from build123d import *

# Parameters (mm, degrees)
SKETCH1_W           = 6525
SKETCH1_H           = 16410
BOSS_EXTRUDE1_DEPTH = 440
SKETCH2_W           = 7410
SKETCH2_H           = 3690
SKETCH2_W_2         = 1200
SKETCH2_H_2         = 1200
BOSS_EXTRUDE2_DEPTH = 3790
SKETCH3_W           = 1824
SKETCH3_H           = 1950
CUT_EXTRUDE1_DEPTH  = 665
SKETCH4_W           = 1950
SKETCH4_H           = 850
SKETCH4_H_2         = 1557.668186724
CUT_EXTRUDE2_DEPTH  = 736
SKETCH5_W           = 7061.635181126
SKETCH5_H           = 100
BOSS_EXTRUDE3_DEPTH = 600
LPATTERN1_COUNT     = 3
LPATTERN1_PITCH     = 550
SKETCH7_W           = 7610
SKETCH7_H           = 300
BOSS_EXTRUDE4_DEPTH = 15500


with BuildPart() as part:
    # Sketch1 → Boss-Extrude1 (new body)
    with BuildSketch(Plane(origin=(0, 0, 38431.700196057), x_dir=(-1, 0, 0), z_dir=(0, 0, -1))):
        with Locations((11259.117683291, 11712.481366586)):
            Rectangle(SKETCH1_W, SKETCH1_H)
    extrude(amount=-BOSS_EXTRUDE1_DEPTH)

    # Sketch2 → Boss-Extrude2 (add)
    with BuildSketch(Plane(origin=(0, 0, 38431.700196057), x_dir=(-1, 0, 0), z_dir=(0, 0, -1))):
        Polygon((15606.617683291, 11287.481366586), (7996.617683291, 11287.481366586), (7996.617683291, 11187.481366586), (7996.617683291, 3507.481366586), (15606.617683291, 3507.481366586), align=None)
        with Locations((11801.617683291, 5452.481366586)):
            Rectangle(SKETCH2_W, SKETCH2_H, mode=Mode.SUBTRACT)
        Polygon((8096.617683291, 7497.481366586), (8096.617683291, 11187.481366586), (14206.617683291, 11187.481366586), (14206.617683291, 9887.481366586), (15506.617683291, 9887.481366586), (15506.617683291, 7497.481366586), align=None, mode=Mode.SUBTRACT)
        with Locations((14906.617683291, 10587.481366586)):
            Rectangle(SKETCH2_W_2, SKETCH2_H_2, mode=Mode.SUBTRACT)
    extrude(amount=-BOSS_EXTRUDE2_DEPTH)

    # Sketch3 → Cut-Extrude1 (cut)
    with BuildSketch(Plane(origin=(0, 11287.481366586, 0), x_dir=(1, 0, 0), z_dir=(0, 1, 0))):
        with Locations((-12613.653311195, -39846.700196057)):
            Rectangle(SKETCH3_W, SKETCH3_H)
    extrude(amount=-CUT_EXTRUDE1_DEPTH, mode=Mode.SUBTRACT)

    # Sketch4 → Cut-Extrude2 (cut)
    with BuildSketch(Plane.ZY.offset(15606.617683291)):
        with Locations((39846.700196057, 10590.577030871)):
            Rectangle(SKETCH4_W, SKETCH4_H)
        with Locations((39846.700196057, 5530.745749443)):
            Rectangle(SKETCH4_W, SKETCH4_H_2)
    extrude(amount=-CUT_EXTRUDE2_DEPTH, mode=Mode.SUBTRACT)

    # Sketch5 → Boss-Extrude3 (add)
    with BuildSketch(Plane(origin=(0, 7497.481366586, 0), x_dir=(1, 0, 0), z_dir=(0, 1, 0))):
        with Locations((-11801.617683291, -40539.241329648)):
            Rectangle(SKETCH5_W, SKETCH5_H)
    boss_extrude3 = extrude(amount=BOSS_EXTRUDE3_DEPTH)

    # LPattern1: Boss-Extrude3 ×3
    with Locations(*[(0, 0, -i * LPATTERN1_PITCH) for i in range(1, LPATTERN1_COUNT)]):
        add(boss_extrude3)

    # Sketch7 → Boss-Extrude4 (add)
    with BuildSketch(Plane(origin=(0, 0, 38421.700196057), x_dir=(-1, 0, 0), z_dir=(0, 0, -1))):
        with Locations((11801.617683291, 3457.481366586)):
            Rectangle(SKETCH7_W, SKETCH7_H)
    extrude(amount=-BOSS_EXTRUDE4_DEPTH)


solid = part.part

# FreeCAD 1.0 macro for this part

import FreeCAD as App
import Part
import Sketcher

doc = App.newDocument("Part")
body = doc.addObject("PartDesign::Body", "Body")

# Sketch on XY plane
sketch1 = doc.addObject("Sketcher::SketchObject", "Sketch")
body.addObject(sketch1)
sketch1.AttachmentSupport = (doc.XY_Plane, [""])
sketch1.MapMode = "FlatFace"
sketch1.AttachmentOffset = App.Placement(App.Vector(0, 0, 38431.700196), App.Rotation())
sketch1.addGeometry([
    Part.LineSegment(App.Vector(-7996.617683, 19917.481367, 0), App.Vector(-7996.617683, 3507.481367, 0)),
    Part.LineSegment(App.Vector(-7996.617683, 3507.481367, 0), App.Vector(-14521.617683, 3507.481367, 0)),
    Part.LineSegment(App.Vector(-14521.617683, 3507.481367, 0), App.Vector(-14521.617683, 19917.481367, 0)),
    Part.LineSegment(App.Vector(-14521.617683, 19917.481367, 0), App.Vector(-7996.617683, 19917.481367, 0)),
], False)
sketch1.addConstraint([
    Sketcher.Constraint("Coincident", 0, 2, 1, 1),
    Sketcher.Constraint("Coincident", 1, 2, 2, 1),
    Sketcher.Constraint("Coincident", 2, 2, 3, 1),
    Sketcher.Constraint("Coincident", 3, 2, 0, 1),
    Sketcher.Constraint("Vertical", 0),
    Sketcher.Constraint("Horizontal", 1),
    Sketcher.Constraint("Vertical", 2),
    Sketcher.Constraint("Horizontal", 3),
    Sketcher.Constraint("DistanceX", 1, 2, 1, 1, 6525.0),
    Sketcher.Constraint("DistanceY", 0, 2, 0, 1, 16410.0),
    Sketcher.Constraint("DistanceX", 0, 2, -1, 1, 7996.617683),
    Sketcher.Constraint("DistanceY", -1, 1, 0, 2, 3507.481367),
])
pad1 = doc.addObject("PartDesign::Pad", "Pad")
body.addObject(pad1)
pad1.Profile = sketch1
pad1.Length = 440

# Sketch on XY plane
sketch2 = doc.addObject("Sketcher::SketchObject", "Sketch001")
body.addObject(sketch2)
sketch2.AttachmentSupport = (doc.XY_Plane, [""])
sketch2.MapMode = "FlatFace"
sketch2.AttachmentOffset = App.Placement(App.Vector(0, 0, 38431.700196), App.Rotation())
sketch2.addGeometry([
    Part.LineSegment(App.Vector(-15606.617683, 11287.481367, 0), App.Vector(-7996.617683, 11287.481367, 0)),  # 0
    Part.LineSegment(App.Vector(-7996.617683, 11287.481367, 0), App.Vector(-7996.617683, 3507.481367, 0)),  # 1
    Part.LineSegment(App.Vector(-7996.617683, 3507.481367, 0), App.Vector(-15606.617683, 3507.481367, 0)),  # 2
    Part.LineSegment(App.Vector(-15606.617683, 3507.481367, 0), App.Vector(-15606.617683, 11287.481367, 0)),  # 3
    Part.LineSegment(App.Vector(-15506.617683, 3607.481367, 0), App.Vector(-8096.617683, 3607.481367, 0)),  # 4
    Part.LineSegment(App.Vector(-8096.617683, 3607.481367, 0), App.Vector(-8096.617683, 7297.481367, 0)),  # 5
    Part.LineSegment(App.Vector(-8096.617683, 7297.481367, 0), App.Vector(-15506.617683, 7297.481367, 0)),  # 6
    Part.LineSegment(App.Vector(-15506.617683, 7297.481367, 0), App.Vector(-15506.617683, 3607.481367, 0)),  # 7
    Part.LineSegment(App.Vector(-15506.617683, 7497.481367, 0), App.Vector(-8096.617683, 7497.481367, 0)),  # 8
    Part.LineSegment(App.Vector(-8096.617683, 7497.481367, 0), App.Vector(-8096.617683, 11187.481367, 0)),  # 9
    Part.LineSegment(App.Vector(-8096.617683, 11187.481367, 0), App.Vector(-14206.617683, 11187.481367, 0)),  # 10
    Part.LineSegment(App.Vector(-14206.617683, 11187.481367, 0), App.Vector(-14206.617683, 9887.481367, 0)),  # 11
    Part.LineSegment(App.Vector(-14206.617683, 9887.481367, 0), App.Vector(-15506.617683, 9887.481367, 0)),  # 12
    Part.LineSegment(App.Vector(-15506.617683, 9887.481367, 0), App.Vector(-15506.617683, 7497.481367, 0)),  # 13
    Part.LineSegment(App.Vector(-15506.617683, 9987.481367, 0), App.Vector(-14306.617683, 9987.481367, 0)),  # 14
    Part.LineSegment(App.Vector(-14306.617683, 9987.481367, 0), App.Vector(-14306.617683, 11187.481367, 0)),  # 15
    Part.LineSegment(App.Vector(-14306.617683, 11187.481367, 0), App.Vector(-15506.617683, 11187.481367, 0)),  # 16
    Part.LineSegment(App.Vector(-15506.617683, 11187.481367, 0), App.Vector(-15506.617683, 9987.481367, 0)),  # 17
], False)
sketch2.addConstraint([
    Sketcher.Constraint("Coincident", 0, 2, 1, 1),
    Sketcher.Constraint("Coincident", 1, 2, 2, 1),
    Sketcher.Constraint("Coincident", 2, 2, 3, 1),
    Sketcher.Constraint("Coincident", 3, 2, 0, 1),
    Sketcher.Constraint("Coincident", 4, 2, 5, 1),
    Sketcher.Constraint("Coincident", 5, 2, 6, 1),
    Sketcher.Constraint("Coincident", 6, 2, 7, 1),
    Sketcher.Constraint("Coincident", 7, 2, 4, 1),
    Sketcher.Constraint("Coincident", 8, 2, 9, 1),
    Sketcher.Constraint("Coincident", 9, 2, 10, 1),
    Sketcher.Constraint("Coincident", 10, 2, 11, 1),
    Sketcher.Constraint("Coincident", 11, 2, 12, 1),
    Sketcher.Constraint("Coincident", 12, 2, 13, 1),
    Sketcher.Constraint("Coincident", 13, 2, 8, 1),
    Sketcher.Constraint("Coincident", 14, 2, 15, 1),
    Sketcher.Constraint("Coincident", 15, 2, 16, 1),
    Sketcher.Constraint("Coincident", 16, 2, 17, 1),
    Sketcher.Constraint("Coincident", 17, 2, 14, 1),
    Sketcher.Constraint("Horizontal", 0),
    Sketcher.Constraint("Vertical", 1),
    Sketcher.Constraint("Horizontal", 2),
    Sketcher.Constraint("Vertical", 3),
    Sketcher.Constraint("Horizontal", 4),
    Sketcher.Constraint("Vertical", 5),
    Sketcher.Constraint("Horizontal", 6),
    Sketcher.Constraint("Vertical", 7),
    Sketcher.Constraint("Horizontal", 8),
    Sketcher.Constraint("Vertical", 9),
    Sketcher.Constraint("Horizontal", 10),
    Sketcher.Constraint("Vertical", 11),
    Sketcher.Constraint("Horizontal", 12),
    Sketcher.Constraint("Vertical", 13),
    Sketcher.Constraint("Horizontal", 14),
    Sketcher.Constraint("Vertical", 15),
    Sketcher.Constraint("Horizontal", 16),
    Sketcher.Constraint("Vertical", 17),
    Sketcher.Constraint("Horizontal", 10, 2, 15, 2),
    Sketcher.Constraint("Vertical", 5, 2, 8, 2),
    Sketcher.Constraint("Vertical", 7, 2, 12, 2),
    Sketcher.Constraint("Vertical", 13, 2, 16, 2),
    Sketcher.Constraint("Equal", 7, 9),
    Sketcher.Constraint("Equal", 12, 11),
    Sketcher.Constraint("Equal", 16, 15),
    Sketcher.Constraint("DistanceX", 0, 1, 0, 2, 7610.0),
    Sketcher.Constraint("DistanceX", 4, 1, 4, 2, 7410.0),
    Sketcher.Constraint("DistanceX", 10, 2, 10, 1, 6110.0),
    Sketcher.Constraint("DistanceX", 14, 1, 14, 2, 1200.0),
    Sketcher.Constraint("DistanceY", 1, 2, 1, 1, 7780.0),
    Sketcher.Constraint("DistanceY", 5, 1, 5, 2, 3690.0),
    Sketcher.Constraint("DistanceX", 4, 2, 1, 2, 100.0),
    Sketcher.Constraint("DistanceY", 1, 2, 4, 2, 100.0),
    Sketcher.Constraint("DistanceY", 5, 2, 8, 2, 200.0),
    Sketcher.Constraint("DistanceX", 0, 2, -1, 1, 7996.617683),
    Sketcher.Constraint("DistanceY", -1, 1, 0, 2, 11287.481367),
])
pad2 = doc.addObject("PartDesign::Pad", "Pad001")
body.addObject(pad2)
pad2.Profile = sketch2
pad2.Length = 3790

# Sketch on XZ plane
sketch3 = doc.addObject("Sketcher::SketchObject", "Sketch002")
body.addObject(sketch3)
sketch3.AttachmentSupport = (doc.XZ_Plane, [""])
sketch3.MapMode = "FlatFace"
sketch3.AttachmentOffset = App.Placement(App.Vector(0, 0, -11287.481367), App.Rotation())
sketch3.addGeometry([
    Part.LineSegment(App.Vector(-13525.653311, 38871.700196, 0), App.Vector(-13525.653311, 40821.700196, 0)),
    Part.LineSegment(App.Vector(-13525.653311, 40821.700196, 0), App.Vector(-11701.653311, 40821.700196, 0)),
    Part.LineSegment(App.Vector(-11701.653311, 40821.700196, 0), App.Vector(-11701.653311, 38871.700196, 0)),
    Part.LineSegment(App.Vector(-11701.653311, 38871.700196, 0), App.Vector(-13525.653311, 38871.700196, 0)),
], False)
sketch3.addConstraint([
    Sketcher.Constraint("Coincident", 0, 2, 1, 1),
    Sketcher.Constraint("Coincident", 1, 2, 2, 1),
    Sketcher.Constraint("Coincident", 2, 2, 3, 1),
    Sketcher.Constraint("Coincident", 3, 2, 0, 1),
    Sketcher.Constraint("Vertical", 0),
    Sketcher.Constraint("Horizontal", 1),
    Sketcher.Constraint("Vertical", 2),
    Sketcher.Constraint("Horizontal", 3),
    Sketcher.Constraint("DistanceX", 1, 1, 1, 2, 1824.0),
    Sketcher.Constraint("DistanceY", 0, 1, 0, 2, 1950.0),
    Sketcher.Constraint("DistanceX", 0, 2, -1, 1, 13525.653311),
    Sketcher.Constraint("DistanceY", -1, 1, 0, 2, 40821.700196),
])
pocket1 = doc.addObject("PartDesign::Pocket", "Pocket")
body.addObject(pocket1)
pocket1.Profile = sketch3
pocket1.Length = 665
pocket1.Reversed = True

# Sketch on YZ plane
sketch4 = doc.addObject("Sketcher::SketchObject", "Sketch003")
body.addObject(sketch4)
sketch4.AttachmentSupport = (doc.YZ_Plane, [""])
sketch4.MapMode = "FlatFace"
sketch4.AttachmentOffset = App.Placement(App.Vector(0, 0, -15606.617683), App.Rotation())
sketch4.addGeometry([
    Part.LineSegment(App.Vector(11015.577031, 38871.700196, 0), App.Vector(10165.577031, 38871.700196, 0)),  # 0
    Part.LineSegment(App.Vector(10165.577031, 38871.700196, 0), App.Vector(10165.577031, 40821.700196, 0)),  # 1
    Part.LineSegment(App.Vector(10165.577031, 40821.700196, 0), App.Vector(11015.577031, 40821.700196, 0)),  # 2
    Part.LineSegment(App.Vector(11015.577031, 40821.700196, 0), App.Vector(11015.577031, 38871.700196, 0)),  # 3
    Part.LineSegment(App.Vector(6309.579843, 38871.700196, 0), App.Vector(4751.911656, 38871.700196, 0)),  # 4
    Part.LineSegment(App.Vector(4751.911656, 38871.700196, 0), App.Vector(4751.911656, 40821.700196, 0)),  # 5
    Part.LineSegment(App.Vector(4751.911656, 40821.700196, 0), App.Vector(6309.579843, 40821.700196, 0)),  # 6
    Part.LineSegment(App.Vector(6309.579843, 40821.700196, 0), App.Vector(6309.579843, 38871.700196, 0)),  # 7
], False)
sketch4.addConstraint([
    Sketcher.Constraint("Coincident", 0, 2, 1, 1),
    Sketcher.Constraint("Coincident", 1, 2, 2, 1),
    Sketcher.Constraint("Coincident", 2, 2, 3, 1),
    Sketcher.Constraint("Coincident", 3, 2, 0, 1),
    Sketcher.Constraint("Coincident", 4, 2, 5, 1),
    Sketcher.Constraint("Coincident", 5, 2, 6, 1),
    Sketcher.Constraint("Coincident", 6, 2, 7, 1),
    Sketcher.Constraint("Coincident", 7, 2, 4, 1),
    Sketcher.Constraint("Horizontal", 0),
    Sketcher.Constraint("Vertical", 1),
    Sketcher.Constraint("Horizontal", 2),
    Sketcher.Constraint("Vertical", 3),
    Sketcher.Constraint("Horizontal", 4),
    Sketcher.Constraint("Vertical", 5),
    Sketcher.Constraint("Horizontal", 6),
    Sketcher.Constraint("Vertical", 7),
    Sketcher.Constraint("Horizontal", 3, 2, 4, 2),
    Sketcher.Constraint("Horizontal", 2, 2, 5, 2),
    Sketcher.Constraint("DistanceX", 0, 2, 0, 1, 850.0),
    Sketcher.Constraint("DistanceY", 1, 1, 1, 2, 1950.0),
    Sketcher.Constraint("DistanceX", 4, 2, 4, 1, 1557.668187),
    Sketcher.Constraint("DistanceX", -1, 1, 0, 2, 10165.577031),
    Sketcher.Constraint("DistanceX", 6, 2, 1, 2, 3855.997188),
    Sketcher.Constraint("DistanceY", -1, 1, 0, 2, 38871.700196),
])
pocket2 = doc.addObject("PartDesign::Pocket", "Pocket001")
body.addObject(pocket2)
pocket2.Profile = sketch4
pocket2.Length = 736
pocket2.Reversed = True

# Sketch on XZ plane
sketch5 = doc.addObject("Sketcher::SketchObject", "Sketch004")
body.addObject(sketch5)
sketch5.AttachmentSupport = (doc.XZ_Plane, [""])
sketch5.MapMode = "FlatFace"
sketch5.AttachmentOffset = App.Placement(App.Vector(0, 0, -7497.481367), App.Rotation())
sketch5.addGeometry([
    Part.LineSegment(App.Vector(-15332.435274, 40489.24133, 0), App.Vector(-15332.435274, 40589.24133, 0)),
    Part.LineSegment(App.Vector(-15332.435274, 40589.24133, 0), App.Vector(-8270.800093, 40589.24133, 0)),
    Part.LineSegment(App.Vector(-8270.800093, 40589.24133, 0), App.Vector(-8270.800093, 40489.24133, 0)),
    Part.LineSegment(App.Vector(-8270.800093, 40489.24133, 0), App.Vector(-15332.435274, 40489.24133, 0)),
], False)
sketch5.addConstraint([
    Sketcher.Constraint("Coincident", 0, 2, 1, 1),
    Sketcher.Constraint("Coincident", 1, 2, 2, 1),
    Sketcher.Constraint("Coincident", 2, 2, 3, 1),
    Sketcher.Constraint("Coincident", 3, 2, 0, 1),
    Sketcher.Constraint("Vertical", 0),
    Sketcher.Constraint("Horizontal", 1),
    Sketcher.Constraint("Vertical", 2),
    Sketcher.Constraint("Horizontal", 3),
    Sketcher.Constraint("DistanceY", 0, 1, 0, 2, 100.0),
    Sketcher.Constraint("DistanceX", 1, 1, 1, 2, 7061.635181),
    Sketcher.Constraint("DistanceY", -1, 1, 0, 2, 40589.24133),
    Sketcher.Constraint("DistanceX", 0, 2, -1, 1, 15332.435274),
])
pad3 = doc.addObject("PartDesign::Pad", "Pad002")
body.addObject(pad3)
pad3.Profile = sketch5
pad3.Length = 600
pad3.Reversed = True
doc.recompute()

linearpattern = doc.addObject("PartDesign::LinearPattern", "LinearPattern")
body.addObject(linearpattern)
linearpattern.Originals = [pad3]
linearpattern.Direction = (doc.Z_Axis, [""])
linearpattern.Mode = "offset"
linearpattern.Offset = 550
linearpattern.Occurrences = 3
linearpattern.Reversed = True
body.Tip = linearpattern

# Sketch on XY plane
sketch6 = doc.addObject("Sketcher::SketchObject", "Sketch005")
body.addObject(sketch6)
sketch6.AttachmentSupport = (doc.XY_Plane, [""])
sketch6.MapMode = "FlatFace"
sketch6.AttachmentOffset = App.Placement(App.Vector(0, 0, 38421.700196), App.Rotation())
sketch6.addGeometry([
    Part.LineSegment(App.Vector(-7996.617683, 3607.481367, 0), App.Vector(-7996.617683, 3307.481367, 0)),
    Part.LineSegment(App.Vector(-7996.617683, 3307.481367, 0), App.Vector(-15606.617683, 3307.481367, 0)),
    Part.LineSegment(App.Vector(-15606.617683, 3307.481367, 0), App.Vector(-15606.617683, 3607.481367, 0)),
    Part.LineSegment(App.Vector(-15606.617683, 3607.481367, 0), App.Vector(-7996.617683, 3607.481367, 0)),
], False)
sketch6.addConstraint([
    Sketcher.Constraint("Coincident", 0, 2, 1, 1),
    Sketcher.Constraint("Coincident", 1, 2, 2, 1),
    Sketcher.Constraint("Coincident", 2, 2, 3, 1),
    Sketcher.Constraint("Coincident", 3, 2, 0, 1),
    Sketcher.Constraint("Vertical", 0),
    Sketcher.Constraint("Horizontal", 1),
    Sketcher.Constraint("Vertical", 2),
    Sketcher.Constraint("Horizontal", 3),
    Sketcher.Constraint("DistanceX", 1, 2, 1, 1, 7610.0),
    Sketcher.Constraint("DistanceY", 0, 2, 0, 1, 300.0),
    Sketcher.Constraint("DistanceX", 0, 2, -1, 1, 7996.617683),
    Sketcher.Constraint("DistanceY", -1, 1, 0, 2, 3307.481367),
])
pad4 = doc.addObject("PartDesign::Pad", "Pad003")
body.addObject(pad4)
pad4.Profile = sketch6
pad4.Length = 15500

doc.recompute()
